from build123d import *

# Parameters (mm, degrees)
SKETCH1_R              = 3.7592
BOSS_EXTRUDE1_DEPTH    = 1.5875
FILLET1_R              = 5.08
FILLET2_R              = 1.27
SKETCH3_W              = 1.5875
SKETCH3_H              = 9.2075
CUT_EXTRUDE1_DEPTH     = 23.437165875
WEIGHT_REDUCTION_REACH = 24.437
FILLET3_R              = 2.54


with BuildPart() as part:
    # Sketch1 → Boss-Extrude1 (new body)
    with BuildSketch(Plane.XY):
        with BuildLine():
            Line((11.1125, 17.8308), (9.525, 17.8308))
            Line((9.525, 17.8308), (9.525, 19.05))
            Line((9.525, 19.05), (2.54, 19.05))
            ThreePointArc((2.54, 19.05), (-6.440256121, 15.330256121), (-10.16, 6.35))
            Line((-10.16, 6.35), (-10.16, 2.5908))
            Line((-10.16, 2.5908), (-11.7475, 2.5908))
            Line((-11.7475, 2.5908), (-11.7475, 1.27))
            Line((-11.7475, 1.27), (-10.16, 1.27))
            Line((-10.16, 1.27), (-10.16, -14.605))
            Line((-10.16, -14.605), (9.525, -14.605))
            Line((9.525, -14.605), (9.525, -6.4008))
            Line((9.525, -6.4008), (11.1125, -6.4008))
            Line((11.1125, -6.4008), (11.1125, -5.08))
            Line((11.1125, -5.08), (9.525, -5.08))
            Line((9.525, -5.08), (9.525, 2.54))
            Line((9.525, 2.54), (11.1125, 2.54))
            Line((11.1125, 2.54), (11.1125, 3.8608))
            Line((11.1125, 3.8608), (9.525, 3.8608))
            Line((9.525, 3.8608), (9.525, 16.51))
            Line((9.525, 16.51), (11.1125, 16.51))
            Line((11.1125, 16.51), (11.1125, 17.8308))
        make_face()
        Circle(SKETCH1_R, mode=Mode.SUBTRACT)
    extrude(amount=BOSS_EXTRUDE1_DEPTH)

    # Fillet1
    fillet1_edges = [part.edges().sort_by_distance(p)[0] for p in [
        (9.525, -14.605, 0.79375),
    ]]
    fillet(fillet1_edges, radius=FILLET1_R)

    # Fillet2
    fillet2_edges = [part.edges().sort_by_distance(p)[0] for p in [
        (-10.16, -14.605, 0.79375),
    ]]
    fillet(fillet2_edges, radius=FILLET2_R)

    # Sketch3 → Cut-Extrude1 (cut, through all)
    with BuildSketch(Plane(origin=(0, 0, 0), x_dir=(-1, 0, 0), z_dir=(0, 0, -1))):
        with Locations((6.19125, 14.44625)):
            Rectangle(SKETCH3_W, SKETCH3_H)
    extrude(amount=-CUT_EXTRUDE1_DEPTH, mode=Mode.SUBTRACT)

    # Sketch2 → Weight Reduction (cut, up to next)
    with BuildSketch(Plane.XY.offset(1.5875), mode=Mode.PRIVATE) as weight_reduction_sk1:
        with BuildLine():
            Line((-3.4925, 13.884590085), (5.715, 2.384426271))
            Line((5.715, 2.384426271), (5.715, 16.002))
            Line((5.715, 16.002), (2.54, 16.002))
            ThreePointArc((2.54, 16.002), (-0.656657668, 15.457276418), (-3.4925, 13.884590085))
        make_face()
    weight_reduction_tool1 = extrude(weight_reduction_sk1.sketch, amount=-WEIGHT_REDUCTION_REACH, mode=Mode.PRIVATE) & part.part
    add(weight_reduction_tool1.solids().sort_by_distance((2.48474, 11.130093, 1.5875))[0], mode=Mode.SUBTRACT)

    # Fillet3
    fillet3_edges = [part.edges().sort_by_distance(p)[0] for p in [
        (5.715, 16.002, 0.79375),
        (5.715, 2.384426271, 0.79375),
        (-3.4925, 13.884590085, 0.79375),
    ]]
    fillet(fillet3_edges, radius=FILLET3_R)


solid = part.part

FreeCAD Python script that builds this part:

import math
import FreeCAD as App
import Part
import Sketcher

V = App.Vector
Q = App.Units.Quantity


def edges_at(feature, points):
    """Names of the edges that pass closest to the given points."""
    edges = feature.Shape.Edges
    near = lambda p: min(range(len(edges)), key=lambda i: edges[i].distToShape(Part.Vertex(*p))[0])
    return sorted({f"Edge{near(p) + 1}" for p in points})

doc = App.newDocument("Part")
body = doc.addObject("PartDesign::Body", "Body")

# Sketch on XY plane
sketch1 = body.newObject("Sketcher::SketchObject", "Sketch")
sketch1.AttachmentSupport = (doc.getObject("XY_Plane"), [""])
sketch1.MapMode = "FlatFace"
sketch1.addGeometry(Part.LineSegment(V(11.1, 17.8, 0), V(9.5, 17.8, 0)), False)
sketch1.addGeometry(Part.LineSegment(V(9.5, 17.8, 0), V(9.5, 19.1, 0)), False)
sketch1.addGeometry(Part.LineSegment(V(9.5, 19.1, 0), V(2.5, 19.1, 0)), False)
sketch1.addGeometry(Part.ArcOfCircle(Part.Circle(V(2.5, 6.3, 0), V(0, 0, 1), 12.7), math.radians(90), math.radians(180)), False)
sketch1.addGeometry(Part.LineSegment(V(-10.2, 6.3, 0), V(-10.2, 2.6, 0)), False)
sketch1.addGeometry(Part.LineSegment(V(-10.2, 2.6, 0), V(-11.7, 2.6, 0)), False)
sketch1.addGeometry(Part.LineSegment(V(-11.7, 2.6, 0), V(-11.7, 1.3, 0)), False)
sketch1.addGeometry(Part.LineSegment(V(-11.7, 1.3, 0), V(-10.2, 1.3, 0)), False)
sketch1.addGeometry(Part.LineSegment(V(-10.2, 1.3, 0), V(-10.2, -14.6, 0)), False)
sketch1.addGeometry(Part.LineSegment(V(-10.2, -14.6, 0), V(9.5, -14.6, 0)), False)
sketch1.addGeometry(Part.LineSegment(V(9.5, -14.6, 0), V(9.5, -6.4, 0)), False)
sketch1.addGeometry(Part.LineSegment(V(9.5, -6.4, 0), V(11.1, -6.4, 0)), False)
sketch1.addGeometry(Part.LineSegment(V(11.1, -6.4, 0), V(11.1, -5.1, 0)), False)
sketch1.addGeometry(Part.LineSegment(V(11.1, -5.1, 0), V(9.5, -5.1, 0)), False)
sketch1.addGeometry(Part.LineSegment(V(9.5, -5.1, 0), V(9.5, 2.5, 0)), False)
sketch1.addGeometry(Part.LineSegment(V(9.5, 2.5, 0), V(11.1, 2.5, 0)), False)
sketch1.addGeometry(Part.LineSegment(V(11.1, 2.5, 0), V(11.1, 3.9, 0)), False)
sketch1.addGeometry(Part.LineSegment(V(11.1, 3.9, 0), V(9.5, 3.9, 0)), False)
sketch1.addGeometry(Part.LineSegment(V(9.5, 3.9, 0), V(9.5, 16.5, 0)), False)
sketch1.addGeometry(Part.LineSegment(V(9.5, 16.5, 0), V(11.1, 16.5, 0)), False)
sketch1.addGeometry(Part.LineSegment(V(11.1, 16.5, 0), V(11.1, 17.8, 0)), False)
sketch1.addGeometry(Part.Circle(V(0, 0, 0), V(0, 0, 1), 3.8), False)
sketch1.addConstraint(Sketcher.Constraint("Coincident", 0, 2, 1, 1))
sketch1.addConstraint(Sketcher.Constraint("Coincident", 1, 2, 2, 1))
sketch1.addConstraint(Sketcher.Constraint("Tangent", 2, 2, 3, 1))
sketch1.addConstraint(Sketcher.Constraint("Tangent", 3, 2, 4, 1))
sketch1.addConstraint(Sketcher.Constraint("Coincident", 4, 2, 5, 1))
sketch1.addConstraint(Sketcher.Constraint("Coincident", 5, 2, 6, 1))
sketch1.addConstraint(Sketcher.Constraint("Coincident", 6, 2, 7, 1))
sketch1.addConstraint(Sketcher.Constraint("Coincident", 7, 2, 8, 1))
sketch1.addConstraint(Sketcher.Constraint("Coincident", 8, 2, 9, 1))
sketch1.addConstraint(Sketcher.Constraint("Coincident", 9, 2, 10, 1))
sketch1.addConstraint(Sketcher.Constraint("Coincident", 10, 2, 11, 1))
sketch1.addConstraint(Sketcher.Constraint("Coincident", 11, 2, 12, 1))
sketch1.addConstraint(Sketcher.Constraint("Coincident", 12, 2, 13, 1))
sketch1.addConstraint(Sketcher.Constraint("Coincident", 13, 2, 14, 1))
sketch1.addConstraint(Sketcher.Constraint("Coincident", 14, 2, 15, 1))
sketch1.addConstraint(Sketcher.Constraint("Coincident", 15, 2, 16, 1))
sketch1.addConstraint(Sketcher.Constraint("Coincident", 16, 2, 17, 1))
sketch1.addConstraint(Sketcher.Constraint("Coincident", 17, 2, 18, 1))
sketch1.addConstraint(Sketcher.Constraint("Coincident", 18, 2, 19, 1))
sketch1.addConstraint(Sketcher.Constraint("Coincident", 19, 2, 20, 1))
sketch1.addConstraint(Sketcher.Constraint("Coincident", 20, 2, 0, 1))
sketch1.addConstraint(Sketcher.Constraint("Horizontal", 0))
sketch1.addConstraint(Sketcher.Constraint("Vertical", 1))
sketch1.addConstraint(Sketcher.Constraint("Horizontal", 2))
sketch1.addConstraint(Sketcher.Constraint("Vertical", 4))
sketch1.addConstraint(Sketcher.Constraint("Horizontal", 5))
sketch1.addConstraint(Sketcher.Constraint("Vertical", 6))
sketch1.addConstraint(Sketcher.Constraint("Horizontal", 7))
sketch1.addConstraint(Sketcher.Constraint("Vertical", 8))
sketch1.addConstraint(Sketcher.Constraint("Horizontal", 9))
sketch1.addConstraint(Sketcher.Constraint("Vertical", 10))
sketch1.addConstraint(Sketcher.Constraint("Horizontal", 11))
sketch1.addConstraint(Sketcher.Constraint("Vertical", 12))
sketch1.addConstraint(Sketcher.Constraint("Horizontal", 13))
sketch1.addConstraint(Sketcher.Constraint("Vertical", 14))
sketch1.addConstraint(Sketcher.Constraint("Horizontal", 15))
sketch1.addConstraint(Sketcher.Constraint("Vertical", 16))
sketch1.addConstraint(Sketcher.Constraint("Horizontal", 17))
sketch1.addConstraint(Sketcher.Constraint("Vertical", 18))
sketch1.addConstraint(Sketcher.Constraint("Horizontal", 19))
sketch1.addConstraint(Sketcher.Constraint("Vertical", 20))
sketch1.addConstraint(Sketcher.Constraint("Coincident", 21, 3, -1, 1))
sketch1.addConstraint(Sketcher.Constraint("Vertical", 4, 2, 7, 2))
sketch1.addConstraint(Sketcher.Constraint("Vertical", 1, 2, 9, 2))
sketch1.addConstraint(Sketcher.Constraint("Vertical", 10, 2, 13, 2))
sketch1.addConstraint(Sketcher.Constraint("Vertical", 12, 2, 15, 2))
sketch1.addConstraint(Sketcher.Constraint("Vertical", 14, 2, 17, 2))
sketch1.addConstraint(Sketcher.Constraint("Vertical", 16, 2, 19, 2))
sketch1.addConstraint(Sketcher.Constraint("Equal", 0, 5))
sketch1.addConstraint(Sketcher.Constraint("Equal", 6, 12))
sketch1.addConstraint(Sketcher.Constraint("Equal", 12, 16))
sketch1.addConstraint(Sketcher.Constraint("Equal", 16, 20))
sketch1.addConstraint(Sketcher.Constraint("Radius", 3, Q("0.5 in")))
sketch1.addConstraint(Sketcher.Constraint("Diameter", 21, Q("0.296 in")))
sketch1.addConstraint(Sketcher.Constraint("DistanceY", 14, 1, 14, 2, Q("0.3 in")))
sketch1.addConstraint(Sketcher.Constraint("DistanceX", -1, 1, 3, 3, Q("0.1 in")))
sketch1.addConstraint(Sketcher.Constraint("DistanceY", 12, 2, -1, 1, Q("0.2 in")))
sketch1.addConstraint(Sketcher.Constraint("DistanceY", 4, 2, 0, 2, Q("0.6 in")))
sketch1.addConstraint(Sketcher.Constraint("DistanceY", 6, 2, 3, 2, Q("0.2 in")))
sketch1.addConstraint(Sketcher.Constraint("DistanceX", 0, 2, 0, 1, Q("0.0625 in")))
sketch1.addConstraint(Sketcher.Constraint("DistanceX", 2, 2, 2, 1, Q("0.275 in")))
sketch1.addConstraint(Sketcher.Constraint("DistanceY", 1, 1, 1, 2, Q("0.048 in")))
sketch1.addConstraint(Sketcher.Constraint("DistanceY", 8, 2, 8, 1, Q("0.625 in")))
sketch1.addConstraint(Sketcher.Constraint("DistanceY", 10, 1, 10, 2, Q("0.323 in")))
pad1 = body.newObject("PartDesign::Pad", "Pad")
pad1.Profile = sketch1
pad1.Length = Q("0.0625 in")
doc.recompute()

fillet = body.newObject("PartDesign::Fillet", "Fillet")
fillet.Base = (pad1, edges_at(pad1, [(9.525, -14.605, 0.794)]))
fillet.Radius = Q("0.2 in")
doc.recompute()

fillet2 = body.newObject("PartDesign::Fillet", "Fillet001")
fillet2.Base = (fillet, edges_at(fillet, [(-10.16, -14.605, 0.794)]))
fillet2.Radius = Q("0.05 in")

# Sketch on XY plane
sketch2 = body.newObject("Sketcher::SketchObject", "Sketch001")
sketch2.AttachmentSupport = (doc.getObject("XY_Plane"), [""])
sketch2.MapMode = "FlatFace"
sketch2.addGeometry(Part.LineSegment(V(-5.4, 19.1, 0), V(-5.4, 9.8, 0)), False)
sketch2.addGeometry(Part.LineSegment(V(-5.4, 9.8, 0), V(-7, 9.8, 0)), False)
sketch2.addGeometry(Part.LineSegment(V(-7, 9.8, 0), V(-7, 19.1, 0)), False)
sketch2.addGeometry(Part.LineSegment(V(-7, 19.1, 0), V(-5.4, 19.1, 0)), False)
sketch2.addConstraint(Sketcher.Constraint("Coincident", 0, 2, 1, 1))
sketch2.addConstraint(Sketcher.Constraint("Coincident", 1, 2, 2, 1))
sketch2.addConstraint(Sketcher.Constraint("Coincident", 2, 2, 3, 1))
sketch2.addConstraint(Sketcher.Constraint("Coincident", 3, 2, 0, 1))
sketch2.addConstraint(Sketcher.Constraint("Vertical", 0))
sketch2.addConstraint(Sketcher.Constraint("Horizontal", 1))
sketch2.addConstraint(Sketcher.Constraint("Vertical", 2))
sketch2.addConstraint(Sketcher.Constraint("Horizontal", 3))
sketch2.addConstraint(Sketcher.Constraint("DistanceX", 1, 2, 1, 1, Q("0.0625 in")))
sketch2.addConstraint(Sketcher.Constraint("DistanceY", -1, 1, 2, 2, Q("0.75 in")))
sketch2.addConstraint(Sketcher.Constraint("DistanceY", 0, 2, 0, 1, Q("0.3625 in")))
sketch2.addConstraint(Sketcher.Constraint("DistanceX", 1, 2, -1, 1, Q("0.275 in")))
pocket1 = body.newObject("PartDesign::Pocket", "Pocket")
pocket1.Profile = sketch2
pocket1.Type = "ThroughAll"
pocket1.Reversed = True

# Sketch on XY plane
sketch3 = body.newObject("Sketcher::SketchObject", "Sketch002")
sketch3.AttachmentSupport = (doc.getObject("XY_Plane"), [""])
sketch3.MapMode = "FlatFace"
sketch3.AttachmentOffset = App.Placement(V(0, 0, 0.0625 * 25.4), App.Rotation())
sketch3.addGeometry(Part.LineSegment(V(-3.5, 13.9, 0), V(5.7, 2.4, 0)), False)
sketch3.addGeometry(Part.LineSegment(V(5.7, 2.4, 0), V(5.7, 16, 0)), False)
sketch3.addGeometry(Part.LineSegment(V(5.7, 16, 0), V(2.5, 16, 0)), False)
sketch3.addGeometry(Part.ArcOfCircle(Part.Circle(V(2.5, 6.4, 0), V(0, 0, 1), 9.7), math.radians(90), math.radians(129)), False)
sketch3.addConstraint(Sketcher.Constraint("Coincident", 0, 2, 1, 1))
sketch3.addConstraint(Sketcher.Constraint("Coincident", 1, 2, 2, 1))
sketch3.addConstraint(Sketcher.Constraint("Tangent", 2, 2, 3, 1))
sketch3.addConstraint(Sketcher.Constraint("Coincident", 3, 2, 0, 1))
sketch3.addConstraint(Sketcher.Constraint("Vertical", 1))
sketch3.addConstraint(Sketcher.Constraint("Horizontal", 2))
sketch3.addConstraint(Sketcher.Constraint("Radius", 3, Q("0.38 in")))
sketch3.addConstraint(Sketcher.Constraint("DistanceX", -1, 1, 3, 3, Q("0.1 in")))
sketch3.addConstraint(Sketcher.Constraint("Distance", 0, Q("0.58 in")))
sketch3.addConstraint(Sketcher.Constraint("DistanceX", 2, 2, 2, 1, Q("0.125 in")))
sketch3.addConstraint(Sketcher.Constraint("DistanceY", -1, 1, 3, 3, Q("0.25 in")))
sketch3.addConstraint(Sketcher.Constraint("DistanceX", 3, 2, -1, 1, Q("0.1375 in")))
pocket2 = body.newObject("PartDesign::Pocket", "Pocket001")
pocket2.Profile = sketch3
pocket2.Type = "UpToFirst"
doc.recompute()

fillet3 = body.newObject("PartDesign::Fillet", "Fillet002")
fillet3.Base = (pocket2, edges_at(pocket2, [(5.715, 16.002, 0.794), (5.715, 2.384, 0.794), (-3.493, 13.885, 0.794)]))
fillet3.Radius = Q("0.1 in")

doc.recompute()
